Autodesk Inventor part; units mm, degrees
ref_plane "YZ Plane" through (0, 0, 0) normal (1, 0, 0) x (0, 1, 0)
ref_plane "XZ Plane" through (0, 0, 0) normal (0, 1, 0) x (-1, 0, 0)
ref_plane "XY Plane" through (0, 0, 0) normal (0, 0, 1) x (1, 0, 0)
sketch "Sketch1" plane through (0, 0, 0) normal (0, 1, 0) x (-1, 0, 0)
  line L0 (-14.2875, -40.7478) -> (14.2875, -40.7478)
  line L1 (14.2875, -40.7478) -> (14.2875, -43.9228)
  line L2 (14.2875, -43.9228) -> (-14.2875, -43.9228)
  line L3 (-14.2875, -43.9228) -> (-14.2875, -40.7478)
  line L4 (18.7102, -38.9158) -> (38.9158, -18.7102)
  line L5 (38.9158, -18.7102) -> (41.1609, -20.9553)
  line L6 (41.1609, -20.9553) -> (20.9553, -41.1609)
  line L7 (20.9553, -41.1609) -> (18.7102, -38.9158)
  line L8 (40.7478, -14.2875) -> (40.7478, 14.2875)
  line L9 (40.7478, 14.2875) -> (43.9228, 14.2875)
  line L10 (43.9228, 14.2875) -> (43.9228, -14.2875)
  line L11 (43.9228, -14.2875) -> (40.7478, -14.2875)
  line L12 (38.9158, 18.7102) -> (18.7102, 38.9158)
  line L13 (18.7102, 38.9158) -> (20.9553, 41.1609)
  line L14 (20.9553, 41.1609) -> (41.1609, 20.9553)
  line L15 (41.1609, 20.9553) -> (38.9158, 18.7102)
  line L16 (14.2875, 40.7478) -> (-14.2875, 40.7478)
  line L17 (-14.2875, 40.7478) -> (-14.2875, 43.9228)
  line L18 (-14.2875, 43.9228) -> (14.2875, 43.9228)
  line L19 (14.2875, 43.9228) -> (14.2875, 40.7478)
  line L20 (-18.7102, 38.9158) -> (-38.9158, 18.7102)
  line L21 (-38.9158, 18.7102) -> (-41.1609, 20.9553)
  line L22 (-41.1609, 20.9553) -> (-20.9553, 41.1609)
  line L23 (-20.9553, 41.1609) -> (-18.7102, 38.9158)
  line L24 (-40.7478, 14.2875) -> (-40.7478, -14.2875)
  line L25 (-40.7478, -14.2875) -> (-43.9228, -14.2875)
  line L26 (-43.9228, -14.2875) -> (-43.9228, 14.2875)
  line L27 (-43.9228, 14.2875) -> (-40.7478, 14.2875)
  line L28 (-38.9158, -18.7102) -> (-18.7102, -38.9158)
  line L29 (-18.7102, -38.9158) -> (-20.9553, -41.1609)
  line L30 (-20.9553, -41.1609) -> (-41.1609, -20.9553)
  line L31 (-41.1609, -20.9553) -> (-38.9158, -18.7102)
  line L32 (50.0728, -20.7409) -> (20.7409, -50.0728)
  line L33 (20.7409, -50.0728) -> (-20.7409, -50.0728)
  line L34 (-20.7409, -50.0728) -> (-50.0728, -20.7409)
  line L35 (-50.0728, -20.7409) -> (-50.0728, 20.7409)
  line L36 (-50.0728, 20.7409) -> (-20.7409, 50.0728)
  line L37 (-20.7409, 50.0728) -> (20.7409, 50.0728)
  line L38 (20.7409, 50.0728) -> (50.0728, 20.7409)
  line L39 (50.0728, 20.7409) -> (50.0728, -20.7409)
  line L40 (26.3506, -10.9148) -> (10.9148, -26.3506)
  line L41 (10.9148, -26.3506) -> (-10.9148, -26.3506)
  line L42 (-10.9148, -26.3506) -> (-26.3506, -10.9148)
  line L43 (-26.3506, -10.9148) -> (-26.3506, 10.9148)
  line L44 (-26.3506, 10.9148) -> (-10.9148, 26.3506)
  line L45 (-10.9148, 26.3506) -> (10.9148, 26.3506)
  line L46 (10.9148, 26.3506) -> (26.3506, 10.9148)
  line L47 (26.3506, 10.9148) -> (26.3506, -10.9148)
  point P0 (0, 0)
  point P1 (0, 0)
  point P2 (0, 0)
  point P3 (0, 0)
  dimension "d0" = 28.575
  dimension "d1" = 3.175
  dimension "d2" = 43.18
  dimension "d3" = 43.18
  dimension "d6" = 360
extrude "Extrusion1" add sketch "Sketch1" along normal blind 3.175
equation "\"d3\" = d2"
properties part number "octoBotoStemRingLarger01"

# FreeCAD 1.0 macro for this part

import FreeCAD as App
import Part
import Sketcher
Q = App.Units.Quantity


def add_polygon(sketch, points):
    """Adds a closed chain of lines whose ends are joined by coincident constraints."""
    first, n = sketch.GeometryCount, len(points)
    for a, b in zip(points, points[1:] + points[:1]):
        sketch.addGeometry(Part.LineSegment(App.Vector(*a, 0), App.Vector(*b, 0)), False)
    for i in range(n):
        sketch.addConstraint(Sketcher.Constraint("Coincident", first + i, 2, first + (i + 1) % n, 1))

doc = App.newDocument("Part")
body = doc.addObject("PartDesign::Body", "Body")

sketch1 = doc.addObject("Sketcher::SketchObject", "Sketch")
body.addObject(sketch1)
sketch1.AttachmentSupport = (doc.XZ_Plane, [""])
sketch1.MapMode = "FlatFace"
add_polygon(sketch1, [(-20.7, -50.1), (-50.1, -20.7), (-50.1, 20.7), (-20.7, 50.1), (20.7, 50.1), (50.1, 20.7), (50.1, -20.7), (20.7, -50.1)])
add_polygon(sketch1, [(41.2, -21), (38.9, -18.7), (18.7, -38.9), (21, -41.2)])
add_polygon(sketch1, [(14.3, -43.9), (14.3, -40.7), (-14.3, -40.7), (-14.3, -43.9)])
add_polygon(sketch1, [(-21, -41.2), (-18.7, -38.9), (-38.9, -18.7), (-41.2, -21)])
add_polygon(sketch1, [(43.9, 14.3), (40.7, 14.3), (40.7, -14.3), (43.9, -14.3)])
add_polygon(sketch1, [(21, 41.2), (18.7, 38.9), (38.9, 18.7), (41.2, 21)])
add_polygon(sketch1, [(-26.4, 10.9), (-26.4, -10.9), (-10.9, -26.4), (10.9, -26.4), (26.4, -10.9), (26.4, 10.9), (10.9, 26.4), (-10.9, 26.4)])
add_polygon(sketch1, [(-43.9, -14.3), (-40.7, -14.3), (-40.7, 14.3), (-43.9, 14.3)])
add_polygon(sketch1, [(-14.3, 43.9), (-14.3, 40.7), (14.3, 40.7), (14.3, 43.9)])
add_polygon(sketch1, [(-41.2, 21), (-38.9, 18.7), (-18.7, 38.9), (-21, 41.2)])
sketch1.addConstraint([
    Sketcher.Constraint("Vertical", 1),
    Sketcher.Constraint("Horizontal", 3),
    Sketcher.Constraint("Vertical", 5),
    Sketcher.Constraint("Horizontal", 7),
    Sketcher.Constraint("Vertical", 12),
    Sketcher.Constraint("Horizontal", 13),
    Sketcher.Constraint("Vertical", 14),
    Sketcher.Constraint("Horizontal", 15),
    Sketcher.Constraint("Horizontal", 20),
    Sketcher.Constraint("Vertical", 21),
    Sketcher.Constraint("Horizontal", 22),
    Sketcher.Constraint("Vertical", 23),
    Sketcher.Constraint("Vertical", 28),
    Sketcher.Constraint("Horizontal", 30),
    Sketcher.Constraint("Vertical", 32),
    Sketcher.Constraint("Horizontal", 34),
    Sketcher.Constraint("Horizontal", 36),
    Sketcher.Constraint("Vertical", 37),
    Sketcher.Constraint("Horizontal", 38),
    Sketcher.Constraint("Vertical", 39),
    Sketcher.Constraint("Vertical", 40),
    Sketcher.Constraint("Horizontal", 41),
    Sketcher.Constraint("Vertical", 42),
    Sketcher.Constraint("Horizontal", 43),
    Sketcher.Constraint("Symmetric", 0, 2, 4, 2, -1, 1),
    Sketcher.Constraint("Symmetric", 2, 2, 6, 2, -1, 1),
    Sketcher.Constraint("Symmetric", 16, 2, 24, 2, -1, 1),
    Sketcher.Constraint("Symmetric", 17, 2, 25, 2, -1, 1),
    Sketcher.Constraint("Symmetric", 18, 2, 26, 2, -1, 1),
    Sketcher.Constraint("Symmetric", 19, 2, 27, 2, -1, 1),
    Sketcher.Constraint("Symmetric", 28, 2, 32, 2, -1, 1),
    Sketcher.Constraint("Symmetric", 29, 2, 33, 2, -1, 1),
    Sketcher.Constraint("Symmetric", 20, 2, 36, 2, -1, 1),
    Sketcher.Constraint("Symmetric", 22, 2, 38, 2, -1, 1),
    Sketcher.Constraint("Symmetric", 12, 2, 40, 2, -1, 1),
    Sketcher.Constraint("Symmetric", 14, 2, 42, 2, -1, 1),
    Sketcher.Constraint("Symmetric", 8, 2, 44, 2, -1, 1),
    Sketcher.Constraint("Symmetric", 9, 2, 45, 2, -1, 1),
    Sketcher.Constraint("Symmetric", 10, 2, 46, 2, -1, 1),
    Sketcher.Constraint("Symmetric", 11, 2, 47, 2, -1, 1),
    Sketcher.Constraint("Symmetric", 9, 2, 16, 2, -2),
    Sketcher.Constraint("Symmetric", 8, 2, 17, 2, -2),
    Sketcher.Constraint("Symmetric", 11, 2, 18, 2, -2),
    Sketcher.Constraint("Symmetric", 10, 2, 19, 2, -2),
    Sketcher.Constraint("Perpendicular", 0, 2),
    Sketcher.Constraint("Perpendicular", 2, 4),
    Sketcher.Constraint("Perpendicular", 4, 6),
    Sketcher.Constraint("Perpendicular", 6, 8),
    Sketcher.Constraint("Perpendicular", 8, 9),
    Sketcher.Constraint("Perpendicular", 9, 10),
    Sketcher.Constraint("Perpendicular", 10, 11),
    Sketcher.Constraint("Parallel", 11, 16),
    Sketcher.Constraint("Parallel", 27, 29),
    Sketcher.Constraint("Perpendicular", 29, 31),
    Sketcher.Constraint("Perpendicular", 33, 35),
    Sketcher.Constraint("Horizontal", 1, 2, 4, 2),
    Sketcher.Constraint("Horizontal", 28, 2, 31, 2),
    Sketcher.Constraint("Horizontal", 32, 2, 35, 2),
    Sketcher.Constraint("Horizontal", 22, 2, 36, 2),
    Sketcher.Constraint("Vertical", 14, 2, 40, 2),
    Sketcher.Constraint("Equal", 7, 1),
    Sketcher.Constraint("Equal", 38, 12),
    Sketcher.Constraint("Equal", 43, 21),
    Sketcher.Constraint("Equal", 34, 28),
    Sketcher.Constraint("DistanceX", 13, 2, 13, 1, Q("1.125 in")),
    Sketcher.Constraint("DistanceX", 20, 2, 20, 1, Q("0.125 in")),
    Sketcher.Constraint("Distance", 8, Q("0.125 in")),
    Sketcher.Constraint("Distance", 9, Q("1.125 in")),
    Sketcher.Constraint("DistanceX", -1, 1, 10, 2, Q("0.825 in")),
    Sketcher.Constraint("DistanceY", 11, 2, -1, 1, Q("0.825 in")),
    Sketcher.Constraint("DistanceY", 8, 2, 3, 2, Q("2.708 in")),
    Sketcher.Constraint("DistanceX", 3, 1, 3, 2, 41.4818),
    Sketcher.Constraint("DistanceX", 30, 1, 30, 2, 21.8296),
    Sketcher.Constraint("DistanceX", 17, 2, 28, 2, Q("0.4947 in")),
    Sketcher.Constraint("DistanceY", 12, 2, -1, 1, 40.7478),
    Sketcher.Constraint("DistanceX", -1, 1, 20, 2, 40.7478),
])
pad1 = doc.addObject("PartDesign::Pad", "Pad")
body.addObject(pad1)
pad1.Profile = sketch1
pad1.Length = Q("0.125 in")
pad1.Reversed = True

doc.recompute()
